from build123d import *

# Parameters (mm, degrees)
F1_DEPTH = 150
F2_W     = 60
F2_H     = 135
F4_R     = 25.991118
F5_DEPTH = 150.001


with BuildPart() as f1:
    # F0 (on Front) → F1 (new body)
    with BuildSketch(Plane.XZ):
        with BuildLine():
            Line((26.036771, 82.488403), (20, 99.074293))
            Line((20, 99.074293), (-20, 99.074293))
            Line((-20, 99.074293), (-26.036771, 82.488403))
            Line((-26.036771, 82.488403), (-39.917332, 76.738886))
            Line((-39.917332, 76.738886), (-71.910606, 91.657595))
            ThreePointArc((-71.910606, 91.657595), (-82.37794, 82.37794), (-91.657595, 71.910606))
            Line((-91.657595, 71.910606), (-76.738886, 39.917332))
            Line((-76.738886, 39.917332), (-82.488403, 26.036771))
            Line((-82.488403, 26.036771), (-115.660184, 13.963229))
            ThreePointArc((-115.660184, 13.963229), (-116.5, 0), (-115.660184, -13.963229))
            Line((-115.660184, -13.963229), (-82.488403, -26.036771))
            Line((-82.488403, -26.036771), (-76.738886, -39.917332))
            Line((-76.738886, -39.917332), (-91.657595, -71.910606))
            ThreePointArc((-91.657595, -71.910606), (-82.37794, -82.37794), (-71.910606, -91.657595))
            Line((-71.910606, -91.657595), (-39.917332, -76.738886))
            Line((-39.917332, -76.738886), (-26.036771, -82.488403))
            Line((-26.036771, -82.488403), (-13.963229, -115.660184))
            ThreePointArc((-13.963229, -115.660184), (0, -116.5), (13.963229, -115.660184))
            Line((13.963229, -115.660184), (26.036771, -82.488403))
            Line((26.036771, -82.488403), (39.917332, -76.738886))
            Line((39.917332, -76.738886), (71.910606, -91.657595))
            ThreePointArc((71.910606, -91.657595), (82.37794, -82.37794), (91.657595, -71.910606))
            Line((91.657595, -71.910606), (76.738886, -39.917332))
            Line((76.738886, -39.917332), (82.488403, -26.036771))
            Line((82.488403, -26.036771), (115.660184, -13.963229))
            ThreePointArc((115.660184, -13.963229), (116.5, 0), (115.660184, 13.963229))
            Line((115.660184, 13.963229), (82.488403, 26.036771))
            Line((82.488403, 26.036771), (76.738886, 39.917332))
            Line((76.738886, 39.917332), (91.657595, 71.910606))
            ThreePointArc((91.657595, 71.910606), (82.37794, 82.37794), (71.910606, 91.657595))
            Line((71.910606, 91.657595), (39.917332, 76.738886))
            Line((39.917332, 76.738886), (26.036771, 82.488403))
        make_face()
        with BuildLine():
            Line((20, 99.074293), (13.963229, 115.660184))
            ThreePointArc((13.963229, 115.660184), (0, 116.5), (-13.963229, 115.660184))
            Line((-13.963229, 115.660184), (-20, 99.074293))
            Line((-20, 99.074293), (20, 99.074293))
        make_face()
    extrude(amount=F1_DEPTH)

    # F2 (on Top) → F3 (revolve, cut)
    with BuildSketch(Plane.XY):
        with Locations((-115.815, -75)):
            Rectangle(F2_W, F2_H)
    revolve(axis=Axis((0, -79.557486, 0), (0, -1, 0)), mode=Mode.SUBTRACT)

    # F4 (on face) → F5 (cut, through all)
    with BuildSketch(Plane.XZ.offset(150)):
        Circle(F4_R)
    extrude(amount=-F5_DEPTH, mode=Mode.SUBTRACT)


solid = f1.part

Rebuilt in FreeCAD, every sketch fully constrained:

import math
import FreeCAD as App
import Part
import Sketcher

V = App.Vector
Q = App.Units.Quantity

doc = App.newDocument("Part")
params = doc.addObject("Spreadsheet::Sheet", "Params")
for row, (alias, value) in enumerate([
    ("pad1_length", "150 mm"),
    ("sketch2_width", "60 mm"),
    ("sketch2_height", "135 mm"),
    ("groove_angle", "360 deg"),
], start=1):
    params.set(f"A{row}", alias)
    params.set(f"B{row}", "=" + value)
    params.setAlias(f"B{row}", alias)

body = doc.addObject("PartDesign::Body", "Body")

sketch1 = body.newObject("Sketcher::SketchObject", "Sketch")
sketch1.AttachmentSupport = (doc.getObject("XZ_Plane"), [""])
sketch1.MapMode = "FlatFace"
sketch1.addGeometry(Part.LineSegment(V(26, 82, 0), V(20, 99, 0)), False)
sketch1.addGeometry(Part.LineSegment(V(20, 99, 0), V(14, 116, 0)), False)
sketch1.addGeometry(Part.ArcOfCircle(Part.Circle(V(0, 0, 0), V(0, 0, 1), 116), math.radians(83.12), math.radians(96.88)), False)
sketch1.addGeometry(Part.LineSegment(V(-14, 116, 0), V(-20, 99, 0)), False)
sketch1.addGeometry(Part.LineSegment(V(-20, 99, 0), V(-26, 82, 0)), False)
sketch1.addGeometry(Part.LineSegment(V(-26, 82, 0), V(-40, 77, 0)), False)
sketch1.addGeometry(Part.LineSegment(V(-40, 77, 0), V(-72, 92, 0)), False)
sketch1.addGeometry(Part.ArcOfCircle(Part.Circle(V(0, 0, 0), V(0, 0, 1), 116), math.radians(128.12), math.radians(141.88)), False)
sketch1.addGeometry(Part.LineSegment(V(-92, 72, 0), V(-77, 40, 0)), False)
sketch1.addGeometry(Part.LineSegment(V(-77, 40, 0), V(-82, 26, 0)), False)
sketch1.addGeometry(Part.LineSegment(V(-82, 26, 0), V(-116, 14, 0)), False)
sketch1.addGeometry(Part.ArcOfCircle(Part.Circle(V(0, 0, 0), V(0, 0, 1), 116), math.radians(173.12), math.radians(186.88)), False)
sketch1.addGeometry(Part.LineSegment(V(-116, -14, 0), V(-82, -26, 0)), False)
sketch1.addGeometry(Part.LineSegment(V(-82, -26, 0), V(-77, -40, 0)), False)
sketch1.addGeometry(Part.LineSegment(V(-77, -40, 0), V(-92, -72, 0)), False)
sketch1.addGeometry(Part.ArcOfCircle(Part.Circle(V(0, 0, 0), V(0, 0, 1), 116), math.radians(-141.88), math.radians(-128.12)), False)
sketch1.addGeometry(Part.LineSegment(V(-72, -92, 0), V(-40, -77, 0)), False)
sketch1.addGeometry(Part.LineSegment(V(-40, -77, 0), V(-26, -82, 0)), False)
sketch1.addGeometry(Part.LineSegment(V(-26, -82, 0), V(-14, -116, 0)), False)
sketch1.addGeometry(Part.ArcOfCircle(Part.Circle(V(0, 0, 0), V(0, 0, 1), 116), math.radians(-96.88), math.radians(-83.12)), False)
sketch1.addGeometry(Part.LineSegment(V(14, -116, 0), V(26, -82, 0)), False)
sketch1.addGeometry(Part.LineSegment(V(26, -82, 0), V(40, -77, 0)), False)
sketch1.addGeometry(Part.LineSegment(V(40, -77, 0), V(72, -92, 0)), False)
sketch1.addGeometry(Part.ArcOfCircle(Part.Circle(V(0, 0, 0), V(0, 0, 1), 116), math.radians(-51.88), math.radians(-38.12)), False)
sketch1.addGeometry(Part.LineSegment(V(92, -72, 0), V(77, -40, 0)), False)
sketch1.addGeometry(Part.LineSegment(V(77, -40, 0), V(82, -26, 0)), False)
sketch1.addGeometry(Part.LineSegment(V(82, -26, 0), V(116, -14, 0)), False)
sketch1.addGeometry(Part.ArcOfCircle(Part.Circle(V(0, 0, 0), V(0, 0, 1), 116), math.radians(-6.88), math.radians(6.88)), False)
sketch1.addGeometry(Part.LineSegment(V(116, 14, 0), V(82, 26, 0)), False)
sketch1.addGeometry(Part.LineSegment(V(82, 26, 0), V(77, 40, 0)), False)
sketch1.addGeometry(Part.LineSegment(V(77, 40, 0), V(92, 72, 0)), False)
sketch1.addGeometry(Part.ArcOfCircle(Part.Circle(V(0, 0, 0), V(0, 0, 1), 116), math.radians(38.12), math.radians(51.88)), False)
sketch1.addGeometry(Part.LineSegment(V(72, 92, 0), V(40, 77, 0)), False)
sketch1.addGeometry(Part.LineSegment(V(40, 77, 0), V(26, 82, 0)), False)
sketch1.addConstraint(Sketcher.Constraint("Coincident", 0, 2, 1, 1))
sketch1.addConstraint(Sketcher.Constraint("Coincident", 1, 2, 2, 1))
sketch1.addConstraint(Sketcher.Constraint("Coincident", 2, 2, 3, 1))
sketch1.addConstraint(Sketcher.Constraint("Coincident", 3, 2, 4, 1))
sketch1.addConstraint(Sketcher.Constraint("Coincident", 4, 2, 5, 1))
sketch1.addConstraint(Sketcher.Constraint("Coincident", 5, 2, 6, 1))
sketch1.addConstraint(Sketcher.Constraint("Coincident", 6, 2, 7, 1))
sketch1.addConstraint(Sketcher.Constraint("Coincident", 7, 2, 8, 1))
sketch1.addConstraint(Sketcher.Constraint("Coincident", 8, 2, 9, 1))
sketch1.addConstraint(Sketcher.Constraint("Coincident", 9, 2, 10, 1))
sketch1.addConstraint(Sketcher.Constraint("Coincident", 10, 2, 11, 1))
sketch1.addConstraint(Sketcher.Constraint("Coincident", 11, 2, 12, 1))
sketch1.addConstraint(Sketcher.Constraint("Coincident", 12, 2, 13, 1))
sketch1.addConstraint(Sketcher.Constraint("Coincident", 13, 2, 14, 1))
sketch1.addConstraint(Sketcher.Constraint("Coincident", 14, 2, 15, 1))
sketch1.addConstraint(Sketcher.Constraint("Coincident", 15, 2, 16, 1))
sketch1.addConstraint(Sketcher.Constraint("Coincident", 16, 2, 17, 1))
sketch1.addConstraint(Sketcher.Constraint("Coincident", 17, 2, 18, 1))
sketch1.addConstraint(Sketcher.Constraint("Coincident", 18, 2, 19, 1))
sketch1.addConstraint(Sketcher.Constraint("Coincident", 19, 2, 20, 1))
sketch1.addConstraint(Sketcher.Constraint("Coincident", 20, 2, 21, 1))
sketch1.addConstraint(Sketcher.Constraint("Coincident", 21, 2, 22, 1))
sketch1.addConstraint(Sketcher.Constraint("Coincident", 22, 2, 23, 1))
sketch1.addConstraint(Sketcher.Constraint("Coincident", 23, 2, 24, 1))
sketch1.addConstraint(Sketcher.Constraint("Coincident", 24, 2, 25, 1))
sketch1.addConstraint(Sketcher.Constraint("Coincident", 25, 2, 26, 1))
sketch1.addConstraint(Sketcher.Constraint("Coincident", 26, 2, 27, 1))
sketch1.addConstraint(Sketcher.Constraint("Coincident", 27, 2, 28, 1))
sketch1.addConstraint(Sketcher.Constraint("Coincident", 28, 2, 29, 1))
sketch1.addConstraint(Sketcher.Constraint("Coincident", 29, 2, 30, 1))
sketch1.addConstraint(Sketcher.Constraint("Coincident", 30, 2, 31, 1))
sketch1.addConstraint(Sketcher.Constraint("Coincident", 31, 2, 32, 1))
sketch1.addConstraint(Sketcher.Constraint("Coincident", 32, 2, 33, 1))
sketch1.addConstraint(Sketcher.Constraint("Coincident", 33, 2, 0, 1))
sketch1.addConstraint(Sketcher.Constraint("Equal", 2, 11))
sketch1.addConstraint(Sketcher.Constraint("Equal", 7, 15))
sketch1.addConstraint(Sketcher.Constraint("Equal", 11, 19))
sketch1.addConstraint(Sketcher.Constraint("Equal", 15, 23))
sketch1.addConstraint(Sketcher.Constraint("Equal", 19, 27))
sketch1.addConstraint(Sketcher.Constraint("Equal", 23, 31))
sketch1.addConstraint(Sketcher.Constraint("Symmetric", 2, 3, 19, 3, -1, 1))
sketch1.addConstraint(Sketcher.Constraint("Symmetric", 7, 3, 23, 3, -1, 1))
sketch1.addConstraint(Sketcher.Constraint("Symmetric", 11, 3, 27, 3, -1, 1))
sketch1.addConstraint(Sketcher.Constraint("Symmetric", 15, 3, 31, 3, -1, 1))
sketch1.addConstraint(Sketcher.Constraint("Symmetric", 4, 2, 20, 2, -1, 1))
sketch1.addConstraint(Sketcher.Constraint("Symmetric", 5, 2, 21, 2, -1, 1))
sketch1.addConstraint(Sketcher.Constraint("Symmetric", 8, 2, 24, 2, -1, 1))
sketch1.addConstraint(Sketcher.Constraint("Symmetric", 9, 2, 25, 2, -1, 1))
sketch1.addConstraint(Sketcher.Constraint("Symmetric", 12, 2, 28, 2, -1, 1))
sketch1.addConstraint(Sketcher.Constraint("Symmetric", 13, 2, 29, 2, -1, 1))
sketch1.addConstraint(Sketcher.Constraint("Symmetric", 16, 2, 32, 2, -1, 1))
sketch1.addConstraint(Sketcher.Constraint("Symmetric", 17, 2, 33, 2, -1, 1))
sketch1.addConstraint(Sketcher.Constraint("Symmetric", 15, 3, 23, 3, -2))
sketch1.addConstraint(Sketcher.Constraint("Symmetric", 1, 2, 2, 2, -2))
sketch1.addConstraint(Sketcher.Constraint("Symmetric", 0, 2, 3, 2, -2))
sketch1.addConstraint(Sketcher.Constraint("Symmetric", 17, 2, 20, 2, -2))
sketch1.addConstraint(Sketcher.Constraint("Symmetric", 16, 2, 21, 2, -2))
sketch1.addConstraint(Sketcher.Constraint("Symmetric", 13, 2, 24, 2, -2))
sketch1.addConstraint(Sketcher.Constraint("Symmetric", 12, 2, 25, 2, -2))
sketch1.addConstraint(Sketcher.Constraint("Symmetric", 11, 2, 26, 2, -2))
sketch1.addConstraint(Sketcher.Constraint("Parallel", 0, 1))
sketch1.addConstraint(Sketcher.Constraint("Perpendicular", 1, 10))
sketch1.addConstraint(Sketcher.Constraint("Perpendicular", 4, 12))
sketch1.addConstraint(Sketcher.Constraint("Perpendicular", 5, 13))
sketch1.addConstraint(Sketcher.Constraint("Perpendicular", 6, 14))
sketch1.addConstraint(Sketcher.Constraint("Perpendicular", 8, 16))
sketch1.addConstraint(Sketcher.Constraint("Perpendicular", 10, 18))
sketch1.addConstraint(Sketcher.Constraint("Perpendicular", 12, 20))
sketch1.addConstraint(Sketcher.Constraint("Perpendicular", 14, 22))
sketch1.addConstraint(Sketcher.Constraint("Perpendicular", 16, 24))
sketch1.addConstraint(Sketcher.Constraint("Perpendicular", 20, 28))
sketch1.addConstraint(Sketcher.Constraint("Perpendicular", 22, 30))
sketch1.addConstraint(Sketcher.Constraint("Perpendicular", 24, 32))
sketch1.addConstraint(Sketcher.Constraint("Horizontal", 15, 2, 22, 2))
sketch1.addConstraint(Sketcher.Constraint("Equal", 0, 1))
sketch1.addConstraint(Sketcher.Constraint("Equal", 6, 8))
sketch1.addConstraint(Sketcher.Constraint("Equal", 5, 9))
sketch1.addConstraint(Sketcher.Constraint("Equal", 8, 10))
sketch1.addConstraint(Sketcher.Constraint("Equal", 16, 18))
sketch1.addConstraint(Sketcher.Constraint("Angle", 0, Q("110.000002 deg")))
sketch1.addConstraint(Sketcher.Constraint("Angle", 6, Q("155 deg")))
sketch1.addConstraint(Sketcher.Constraint("DistanceX", -1, 1, 0, 2, Q("20 mm")))
sketch1.addConstraint(Sketcher.Constraint("Angle", 5, Q("-157.499999 deg")))
sketch1.addConstraint(Sketcher.Constraint("DistanceY", 11, 2, 9, 2, Q("40 mm")))
sketch1.addConstraint(Sketcher.Constraint("Radius", 2, Q("116.499957 mm")))
sketch1.addConstraint(Sketcher.Constraint("Radius", 7, Q("116.499988 mm")))
sketch1.addConstraint(Sketcher.Constraint("DistanceY", 23, 3, 0, 2, Q("99.074302 mm")))
sketch1.addConstraint(Sketcher.Constraint("DistanceY", 5, 2, 1, 2, Q("38.921298 mm")))
sketch1.addConstraint(Sketcher.Constraint("Distance", 5, Q("15.024211 mm")))
sketch1.addConstraint(Sketcher.Constraint("DistanceX", 31, 3, 0, 2, Q("19.999991 mm")))
pad1 = body.newObject("PartDesign::Pad", "Pad")
pad1.Profile = sketch1
pad1.setExpression("Length", "Params.pad1_length")

sketch2 = body.newObject("Sketcher::SketchObject", "Sketch001")
sketch2.AttachmentSupport = (doc.getObject("XY_Plane"), [""])
sketch2.MapMode = "FlatFace"
sketch2.addGeometry(Part.LineSegment(V(-146, -8, 0), V(-146, -142, 0)), False)
sketch2.addGeometry(Part.LineSegment(V(-146, -142, 0), V(-86, -142, 0)), False)
sketch2.addGeometry(Part.LineSegment(V(-86, -142, 0), V(-86, -8, 0)), False)
sketch2.addGeometry(Part.LineSegment(V(-86, -8, 0), V(-146, -8, 0)), False)
sketch2.addConstraint(Sketcher.Constraint("Coincident", 0, 2, 1, 1))
sketch2.addConstraint(Sketcher.Constraint("Coincident", 1, 2, 2, 1))
sketch2.addConstraint(Sketcher.Constraint("Coincident", 2, 2, 3, 1))
sketch2.addConstraint(Sketcher.Constraint("Coincident", 3, 2, 0, 1))
sketch2.addConstraint(Sketcher.Constraint("Vertical", 0))
sketch2.addConstraint(Sketcher.Constraint("Horizontal", 1))
sketch2.addConstraint(Sketcher.Constraint("Vertical", 2))
sketch2.addConstraint(Sketcher.Constraint("Horizontal", 3))
sketch2.addConstraint(Sketcher.Constraint("DistanceX", 1, 1, 1, 2, Q("60 mm")))
sketch2.addConstraint(Sketcher.Constraint("DistanceY", 0, 2, 0, 1, Q("135 mm")))
sketch2.addConstraint(Sketcher.Constraint("DistanceY", 0, 2, -1, 1, Q("142.5 mm")))
sketch2.addConstraint(Sketcher.Constraint("DistanceX", 0, 2, -1, 1, Q("145.815 mm")))
sketch2.setExpression("Constraints[8]", "Params.sketch2_width")
sketch2.setExpression("Constraints[9]", "Params.sketch2_height")
groove = body.newObject("PartDesign::Groove", "Groove")
groove.Profile = sketch2
groove.ReferenceAxis = (sketch2, ["V_Axis"])
groove.setExpression("Angle", "Params.groove_angle")

sketch3 = body.newObject("Sketcher::SketchObject", "Sketch002")
sketch3.AttachmentSupport = (doc.getObject("XZ_Plane"), [""])
sketch3.MapMode = "FlatFace"
sketch3.AttachmentOffset = App.Placement(V(0, 0, 150), App.Rotation())
sketch3.addGeometry(Part.Circle(V(0, 0, 0), V(0, 0, 1), 26), False)
sketch3.addConstraint(Sketcher.Constraint("Coincident", 0, 3, -1, 1))
sketch3.addConstraint(Sketcher.Constraint("Diameter", 0, Q("51.982236 mm")))
pocket1 = body.newObject("PartDesign::Pocket", "Pocket")
pocket1.Profile = sketch3
pocket1.Type = "ThroughAll"

doc.recompute()
